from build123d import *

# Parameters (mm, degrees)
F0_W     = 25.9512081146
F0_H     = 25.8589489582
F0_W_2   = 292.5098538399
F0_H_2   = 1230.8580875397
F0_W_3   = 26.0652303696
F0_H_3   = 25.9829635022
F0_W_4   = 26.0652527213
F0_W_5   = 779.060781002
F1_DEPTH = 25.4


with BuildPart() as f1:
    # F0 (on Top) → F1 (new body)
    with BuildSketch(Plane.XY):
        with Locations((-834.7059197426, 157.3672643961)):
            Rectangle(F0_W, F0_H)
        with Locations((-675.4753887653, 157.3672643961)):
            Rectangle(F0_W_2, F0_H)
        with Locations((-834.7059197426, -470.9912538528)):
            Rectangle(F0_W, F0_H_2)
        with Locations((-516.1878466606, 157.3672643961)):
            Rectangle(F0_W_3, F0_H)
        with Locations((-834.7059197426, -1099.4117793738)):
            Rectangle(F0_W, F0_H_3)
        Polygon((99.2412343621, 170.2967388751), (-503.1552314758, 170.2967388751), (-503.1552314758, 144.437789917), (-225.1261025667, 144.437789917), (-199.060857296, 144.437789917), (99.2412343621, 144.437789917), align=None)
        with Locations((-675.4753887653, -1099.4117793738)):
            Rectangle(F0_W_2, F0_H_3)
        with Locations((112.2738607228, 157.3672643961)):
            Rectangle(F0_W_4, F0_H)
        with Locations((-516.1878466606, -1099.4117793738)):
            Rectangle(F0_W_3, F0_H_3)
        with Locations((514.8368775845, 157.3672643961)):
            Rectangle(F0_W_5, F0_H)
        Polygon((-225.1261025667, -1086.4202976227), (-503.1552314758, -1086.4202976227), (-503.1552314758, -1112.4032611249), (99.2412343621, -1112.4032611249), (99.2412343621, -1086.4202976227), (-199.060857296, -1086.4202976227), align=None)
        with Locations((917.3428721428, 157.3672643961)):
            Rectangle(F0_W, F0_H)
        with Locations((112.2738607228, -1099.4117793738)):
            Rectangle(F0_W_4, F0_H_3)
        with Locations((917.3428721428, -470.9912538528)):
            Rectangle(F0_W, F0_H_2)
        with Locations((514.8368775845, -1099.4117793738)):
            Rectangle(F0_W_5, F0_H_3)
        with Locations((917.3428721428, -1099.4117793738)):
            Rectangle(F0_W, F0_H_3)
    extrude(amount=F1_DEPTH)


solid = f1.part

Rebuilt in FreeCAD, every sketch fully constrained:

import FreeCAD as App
import Part
import Sketcher

V = App.Vector
Q = App.Units.Quantity

doc = App.newDocument("Part")
body = doc.addObject("PartDesign::Body", "Body")

# Sketch on XY plane
sketch1 = doc.addObject("Sketcher::SketchObject", "Sketch")
body.addObject(sketch1)
sketch1.AttachmentSupport = (doc.XY_Plane, [""])
sketch1.MapMode = "FlatFace"
sketch1.addGeometry(Part.LineSegment(V(-848, -1112, 0), V(930, -1112, 0)), False)
sketch1.addGeometry(Part.LineSegment(V(930, -1112, 0), V(930, 170, 0)), False)
sketch1.addGeometry(Part.LineSegment(V(930, 170, 0), V(-848, 170, 0)), False)
sketch1.addGeometry(Part.LineSegment(V(-848, 170, 0), V(-848, -1112, 0)), False)
sketch1.addGeometry(Part.LineSegment(V(904, 144, 0), V(904, -1086, 0)), False)
sketch1.addGeometry(Part.LineSegment(V(904, -1086, 0), V(-822, -1086, 0)), False)
sketch1.addGeometry(Part.LineSegment(V(-822, -1086, 0), V(-822, 144, 0)), False)
sketch1.addGeometry(Part.LineSegment(V(-822, 144, 0), V(904, 144, 0)), False)
sketch1.addConstraint(Sketcher.Constraint("Coincident", 0, 2, 1, 1))
sketch1.addConstraint(Sketcher.Constraint("Coincident", 1, 2, 2, 1))
sketch1.addConstraint(Sketcher.Constraint("Coincident", 2, 2, 3, 1))
sketch1.addConstraint(Sketcher.Constraint("Coincident", 3, 2, 0, 1))
sketch1.addConstraint(Sketcher.Constraint("Coincident", 4, 2, 5, 1))
sketch1.addConstraint(Sketcher.Constraint("Coincident", 5, 2, 6, 1))
sketch1.addConstraint(Sketcher.Constraint("Coincident", 6, 2, 7, 1))
sketch1.addConstraint(Sketcher.Constraint("Coincident", 7, 2, 4, 1))
sketch1.addConstraint(Sketcher.Constraint("Horizontal", 0))
sketch1.addConstraint(Sketcher.Constraint("Vertical", 1))
sketch1.addConstraint(Sketcher.Constraint("Horizontal", 2))
sketch1.addConstraint(Sketcher.Constraint("Vertical", 3))
sketch1.addConstraint(Sketcher.Constraint("Vertical", 4))
sketch1.addConstraint(Sketcher.Constraint("Horizontal", 5))
sketch1.addConstraint(Sketcher.Constraint("Vertical", 6))
sketch1.addConstraint(Sketcher.Constraint("Horizontal", 7))
sketch1.addConstraint(Sketcher.Constraint("DistanceX", 0, 1, 0, 2, Q("70 in")))
sketch1.addConstraint(Sketcher.Constraint("DistanceY", 1, 1, 1, 2, Q("50.5 in")))
sketch1.addConstraint(Sketcher.Constraint("DistanceX", 5, 2, 5, 1, 1726.097584))
sketch1.addConstraint(Sketcher.Constraint("DistanceY", 4, 2, 4, 1, 1230.858088))
sketch1.addConstraint(Sketcher.Constraint("DistanceY", 0, 2, -1, 1, 1112.403261))
sketch1.addConstraint(Sketcher.Constraint("DistanceX", -1, 1, 4, 2, 904.367268))
sketch1.addConstraint(Sketcher.Constraint("DistanceY", -1, 1, 6, 2, 144.43779))
sketch1.addConstraint(Sketcher.Constraint("DistanceX", 4, 2, 0, 2, 25.951208))
pad1 = doc.addObject("PartDesign::Pad", "Pad")
body.addObject(pad1)
pad1.Profile = sketch1
pad1.Length = Q("1 in")

doc.recompute()
